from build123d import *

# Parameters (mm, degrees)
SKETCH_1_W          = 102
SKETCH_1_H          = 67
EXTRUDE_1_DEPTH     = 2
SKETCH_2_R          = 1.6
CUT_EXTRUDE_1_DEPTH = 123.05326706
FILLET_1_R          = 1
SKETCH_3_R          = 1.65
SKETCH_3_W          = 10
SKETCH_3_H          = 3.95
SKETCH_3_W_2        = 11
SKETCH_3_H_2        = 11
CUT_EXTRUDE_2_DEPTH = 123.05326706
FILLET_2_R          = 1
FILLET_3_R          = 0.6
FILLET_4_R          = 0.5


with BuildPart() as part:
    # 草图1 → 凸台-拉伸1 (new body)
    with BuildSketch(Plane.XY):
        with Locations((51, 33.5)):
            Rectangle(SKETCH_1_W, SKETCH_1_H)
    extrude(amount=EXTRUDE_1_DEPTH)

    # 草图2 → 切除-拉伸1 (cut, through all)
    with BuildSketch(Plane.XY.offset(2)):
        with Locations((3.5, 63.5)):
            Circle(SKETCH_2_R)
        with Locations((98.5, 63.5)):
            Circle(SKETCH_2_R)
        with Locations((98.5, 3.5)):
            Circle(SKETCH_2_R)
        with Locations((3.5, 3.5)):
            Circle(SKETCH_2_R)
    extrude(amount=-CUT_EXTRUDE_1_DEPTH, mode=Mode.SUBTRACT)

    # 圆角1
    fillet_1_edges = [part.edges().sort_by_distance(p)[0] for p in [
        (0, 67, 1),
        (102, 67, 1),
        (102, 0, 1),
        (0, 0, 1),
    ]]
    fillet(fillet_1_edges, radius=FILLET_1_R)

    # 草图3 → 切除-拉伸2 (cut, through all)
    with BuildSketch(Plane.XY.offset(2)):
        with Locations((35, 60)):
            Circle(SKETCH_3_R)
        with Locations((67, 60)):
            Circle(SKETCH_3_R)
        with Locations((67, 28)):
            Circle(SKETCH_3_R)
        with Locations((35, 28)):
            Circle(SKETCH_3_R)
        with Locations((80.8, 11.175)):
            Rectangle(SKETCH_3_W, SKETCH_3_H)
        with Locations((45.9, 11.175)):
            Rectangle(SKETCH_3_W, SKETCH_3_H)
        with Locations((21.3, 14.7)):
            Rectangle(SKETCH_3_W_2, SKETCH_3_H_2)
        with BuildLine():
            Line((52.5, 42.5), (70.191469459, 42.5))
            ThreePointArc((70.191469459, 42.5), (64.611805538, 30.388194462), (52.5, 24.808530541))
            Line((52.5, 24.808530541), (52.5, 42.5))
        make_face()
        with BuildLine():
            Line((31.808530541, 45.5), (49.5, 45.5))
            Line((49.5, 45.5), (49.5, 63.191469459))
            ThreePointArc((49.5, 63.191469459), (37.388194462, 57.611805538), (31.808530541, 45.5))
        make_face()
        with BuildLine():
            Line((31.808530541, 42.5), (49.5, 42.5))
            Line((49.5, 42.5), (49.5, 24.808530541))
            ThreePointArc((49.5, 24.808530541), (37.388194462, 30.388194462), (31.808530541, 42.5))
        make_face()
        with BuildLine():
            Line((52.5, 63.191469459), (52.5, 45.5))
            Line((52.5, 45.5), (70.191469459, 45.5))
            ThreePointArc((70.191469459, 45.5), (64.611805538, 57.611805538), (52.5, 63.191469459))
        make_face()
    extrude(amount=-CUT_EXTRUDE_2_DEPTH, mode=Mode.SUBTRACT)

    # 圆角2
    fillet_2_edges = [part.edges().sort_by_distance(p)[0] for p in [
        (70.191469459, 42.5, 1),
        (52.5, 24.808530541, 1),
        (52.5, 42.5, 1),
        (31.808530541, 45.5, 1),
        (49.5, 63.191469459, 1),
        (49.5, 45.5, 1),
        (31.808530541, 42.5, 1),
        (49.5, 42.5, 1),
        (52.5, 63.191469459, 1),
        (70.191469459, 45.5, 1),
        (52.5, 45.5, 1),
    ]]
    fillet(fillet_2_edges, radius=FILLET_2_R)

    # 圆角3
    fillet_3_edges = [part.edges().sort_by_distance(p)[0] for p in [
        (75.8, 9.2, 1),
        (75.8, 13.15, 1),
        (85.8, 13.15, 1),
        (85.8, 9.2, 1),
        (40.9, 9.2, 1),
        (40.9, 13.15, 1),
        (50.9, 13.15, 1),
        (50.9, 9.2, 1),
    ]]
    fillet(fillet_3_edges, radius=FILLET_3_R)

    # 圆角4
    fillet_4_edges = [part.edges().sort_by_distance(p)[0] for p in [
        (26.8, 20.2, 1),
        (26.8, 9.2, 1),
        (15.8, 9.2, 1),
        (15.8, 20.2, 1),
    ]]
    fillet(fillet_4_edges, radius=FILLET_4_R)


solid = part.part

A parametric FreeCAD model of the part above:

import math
import FreeCAD as App
import Part
import Sketcher
Q = App.Units.Quantity


def edges_at(feature, points):
    """Names of the edges that pass closest to the given points."""
    edges = feature.Shape.Edges
    near = lambda p: min(range(len(edges)), key=lambda i: edges[i].distToShape(Part.Vertex(*p))[0])
    return sorted({f"Edge{near(p) + 1}" for p in points})


def add_polygon(sketch, points):
    """Adds a closed chain of lines whose ends are joined by coincident constraints."""
    first, n = sketch.GeometryCount, len(points)
    for a, b in zip(points, points[1:] + points[:1]):
        sketch.addGeometry(Part.LineSegment(App.Vector(*a, 0), App.Vector(*b, 0)), False)
    for i in range(n):
        sketch.addConstraint(Sketcher.Constraint("Coincident", first + i, 2, first + (i + 1) % n, 1))

doc = App.newDocument("Part")
body = doc.addObject("PartDesign::Body", "Body")

sketch1 = doc.addObject("Sketcher::SketchObject", "Sketch")
body.addObject(sketch1)
sketch1.AttachmentSupport = (doc.XY_Plane, [""])
sketch1.MapMode = "FlatFace"
add_polygon(sketch1, [(0, 67), (0, 0), (102, 0), (102, 67)])
sketch1.addConstraint([
    Sketcher.Constraint("Vertical", 0),
    Sketcher.Constraint("Horizontal", 1),
    Sketcher.Constraint("Vertical", 2),
    Sketcher.Constraint("Horizontal", 3),
    Sketcher.Constraint("Coincident", 0, 2, -1, 1),
    Sketcher.Constraint("DistanceX", 1, 1, 1, 2, Q("102 mm")),
    Sketcher.Constraint("DistanceY", 0, 2, 0, 1, Q("67 mm")),
])
pad1 = doc.addObject("PartDesign::Pad", "Pad")
body.addObject(pad1)
pad1.Profile = sketch1
pad1.Length = 2

sketch2 = doc.addObject("Sketcher::SketchObject", "Sketch001")
body.addObject(sketch2)
sketch2.AttachmentSupport = (doc.XY_Plane, [""])
sketch2.MapMode = "FlatFace"
sketch2.AttachmentOffset = App.Placement(App.Vector(0, 0, 2), App.Rotation())
sketch2.addGeometry([
    Part.Circle(App.Vector(3.5, 63.5, 0), App.Vector(0, 0, 1), 1.6),
    Part.Circle(App.Vector(98.5, 63.5, 0), App.Vector(0, 0, 1), 1.6),
    Part.Circle(App.Vector(98.5, 3.5, 0), App.Vector(0, 0, 1), 1.6),
    Part.Circle(App.Vector(3.5, 3.5, 0), App.Vector(0, 0, 1), 1.6),
], False)
sketch2.addConstraint([
    Sketcher.Constraint("Equal", 0, 1),
    Sketcher.Constraint("Equal", 1, 2),
    Sketcher.Constraint("Equal", 2, 3),
    Sketcher.Constraint("Horizontal", 0, 3, 1, 3),
    Sketcher.Constraint("Horizontal", 2, 3, 3, 3),
    Sketcher.Constraint("Vertical", 1, 3, 2, 3),
    Sketcher.Constraint("Vertical", 0, 3, 3, 3),
    Sketcher.Constraint("Diameter", 0, Q("3.2 mm")),
    Sketcher.Constraint("DistanceX", 0, 3, 1, 3, Q("95 mm")),
    Sketcher.Constraint("DistanceY", 2, 3, 1, 3, Q("60 mm")),
    Sketcher.Constraint("DistanceX", -1, 1, 0, 3, Q("3.5 mm")),
    Sketcher.Constraint("DistanceY", -1, 1, 0, 3, Q("63.5 mm")),
])
pocket1 = doc.addObject("PartDesign::Pocket", "Pocket")
body.addObject(pocket1)
pocket1.Profile = sketch2
pocket1.Type = "ThroughAll"
doc.recompute()

fillet = doc.addObject("PartDesign::Fillet", "Fillet")
body.addObject(fillet)
fillet.Base = (pocket1, edges_at(pocket1, [
    (0, 67, 1),
    (102, 67, 1),
    (102, 0, 1),
    (0, 0, 1),
]))
fillet.Radius = 1

sketch3 = doc.addObject("Sketcher::SketchObject", "Sketch002")
body.addObject(sketch3)
sketch3.AttachmentSupport = (doc.XY_Plane, [""])
sketch3.MapMode = "FlatFace"
sketch3.AttachmentOffset = App.Placement(App.Vector(0, 0, 2), App.Rotation())
sketch3.addGeometry(Part.Circle(App.Vector(35, 60, 0), App.Vector(0, 0, 1), 1.6), False)
sketch3.addGeometry(Part.Circle(App.Vector(67, 60, 0), App.Vector(0, 0, 1), 1.6), False)
sketch3.addGeometry(Part.Circle(App.Vector(67, 28, 0), App.Vector(0, 0, 1), 1.6), False)
sketch3.addGeometry(Part.Circle(App.Vector(35, 28, 0), App.Vector(0, 0, 1), 1.6), False)
add_polygon(sketch3, [(75.8, 13.2), (75.8, 9.2), (85.8, 9.2), (85.8, 13.2)])
add_polygon(sketch3, [(40.9, 13.2), (40.9, 9.2), (50.9, 9.2), (50.9, 13.2)])
add_polygon(sketch3, [(15.8, 20.2), (15.8, 9.2), (26.8, 9.2), (26.8, 20.2)])
sketch3.addGeometry(Part.LineSegment(App.Vector(70.2, 42.5, 0), App.Vector(52.5, 42.5, 0)), False)
sketch3.addGeometry(Part.LineSegment(App.Vector(52.5, 42.5, 0), App.Vector(52.5, 24.8, 0)), False)
sketch3.addGeometry(Part.ArcOfCircle(Part.Circle(App.Vector(51, 44, 0), App.Vector(0, 0, 1), 19.2), math.radians(-86), math.radians(-4)), False)
sketch3.addGeometry(Part.LineSegment(App.Vector(31.8, 45.5, 0), App.Vector(49.5, 45.5, 0)), False)
sketch3.addGeometry(Part.LineSegment(App.Vector(49.5, 45.5, 0), App.Vector(49.5, 63.2, 0)), False)
sketch3.addGeometry(Part.ArcOfCircle(Part.Circle(App.Vector(51, 44, 0), App.Vector(0, 0, 1), 19.2), math.radians(94), math.radians(176)), False)
sketch3.addGeometry(Part.LineSegment(App.Vector(49.5, 42.5, 0), App.Vector(31.8, 42.5, 0)), False)
sketch3.addGeometry(Part.ArcOfCircle(Part.Circle(App.Vector(51, 44, 0), App.Vector(0, 0, 1), 19.2), math.radians(-176), math.radians(-94)), False)
sketch3.addGeometry(Part.LineSegment(App.Vector(49.5, 24.8, 0), App.Vector(49.5, 42.5, 0)), False)
sketch3.addGeometry(Part.LineSegment(App.Vector(52.5, 63.2, 0), App.Vector(52.5, 45.5, 0)), False)
sketch3.addGeometry(Part.LineSegment(App.Vector(52.5, 45.5, 0), App.Vector(70.2, 45.5, 0)), False)
sketch3.addGeometry(Part.ArcOfCircle(Part.Circle(App.Vector(51, 44, 0), App.Vector(0, 0, 1), 19.2), math.radians(4), math.radians(86)), False)
sketch3.addConstraint([
    Sketcher.Constraint("Coincident", 16, 2, 17, 1),
    Sketcher.Constraint("Coincident", 17, 2, 18, 1),
    Sketcher.Constraint("Coincident", 18, 2, 16, 1),
    Sketcher.Constraint("Coincident", 19, 2, 20, 1),
    Sketcher.Constraint("Coincident", 20, 2, 21, 1),
    Sketcher.Constraint("Coincident", 21, 2, 19, 1),
    Sketcher.Constraint("Coincident", 22, 2, 23, 1),
    Sketcher.Constraint("Coincident", 23, 2, 24, 1),
    Sketcher.Constraint("Coincident", 24, 2, 22, 1),
    Sketcher.Constraint("Coincident", 25, 2, 26, 1),
    Sketcher.Constraint("Coincident", 26, 2, 27, 1),
    Sketcher.Constraint("Coincident", 27, 2, 25, 1),
    Sketcher.Constraint("Vertical", 4),
    Sketcher.Constraint("Horizontal", 5),
    Sketcher.Constraint("Vertical", 6),
    Sketcher.Constraint("Horizontal", 7),
    Sketcher.Constraint("Vertical", 8),
    Sketcher.Constraint("Horizontal", 9),
    Sketcher.Constraint("Vertical", 10),
    Sketcher.Constraint("Horizontal", 11),
    Sketcher.Constraint("Vertical", 12),
    Sketcher.Constraint("Horizontal", 13),
    Sketcher.Constraint("Vertical", 14),
    Sketcher.Constraint("Horizontal", 15),
    Sketcher.Constraint("Horizontal", 16),
    Sketcher.Constraint("Vertical", 17),
    Sketcher.Constraint("Horizontal", 19),
    Sketcher.Constraint("Vertical", 20),
    Sketcher.Constraint("Horizontal", 22),
    Sketcher.Constraint("Vertical", 24),
    Sketcher.Constraint("Vertical", 25),
    Sketcher.Constraint("Horizontal", 26),
    Sketcher.Constraint("Coincident", 21, 3, 18, 3),
    Sketcher.Constraint("Coincident", 23, 3, 18, 3),
    Sketcher.Constraint("Coincident", 27, 3, 18, 3),
    Sketcher.Constraint("Equal", 0, 1),
    Sketcher.Constraint("Equal", 1, 2),
    Sketcher.Constraint("Equal", 2, 3),
    Sketcher.Constraint("Equal", 18, 21),
    Sketcher.Constraint("Equal", 21, 23),
    Sketcher.Constraint("Equal", 23, 27),
    Sketcher.Constraint("Horizontal", 0, 3, 1, 3),
    Sketcher.Constraint("Horizontal", 2, 3, 3, 3),
    Sketcher.Constraint("Horizontal", 5, 2, 8, 2),
    Sketcher.Constraint("Horizontal", 7, 2, 10, 2),
    Sketcher.Constraint("Horizontal", 9, 2, 12, 2),
    Sketcher.Constraint("Horizontal", 18, 2, 22, 2),
    Sketcher.Constraint("Horizontal", 17, 2, 23, 2),
    Sketcher.Constraint("Horizontal", 21, 2, 25, 2),
    Sketcher.Constraint("Horizontal", 20, 2, 27, 2),
    Sketcher.Constraint("Vertical", 1, 3, 2, 3),
    Sketcher.Constraint("Vertical", 0, 3, 3, 3),
    Sketcher.Constraint("Vertical", 21, 2, 22, 2),
    Sketcher.Constraint("Vertical", 20, 2, 23, 2),
    Sketcher.Constraint("Equal", 7, 9),
    Sketcher.Constraint("Equal", 15, 12),
    Sketcher.Constraint("Equal", 26, 17),
    Sketcher.Constraint("Diameter", 0, Q("3.3 mm")),
    Sketcher.Constraint("DistanceX", 5, 1, 5, 2, Q("10 mm")),
    Sketcher.Constraint("DistanceX", 13, 1, 13, 2, Q("11 mm")),
    Sketcher.Constraint("Radius", 18, Q("19.25 mm")),
    Sketcher.Constraint("DistanceX", -1, 1, 0, 3, Q("35 mm")),
    Sketcher.Constraint("DistanceY", -1, 1, 0, 3, Q("60 mm")),
    Sketcher.Constraint("DistanceX", -1, 1, 1, 3, Q("67 mm")),
    Sketcher.Constraint("DistanceY", -1, 1, 2, 3, Q("28 mm")),
    Sketcher.Constraint("DistanceX", -1, 1, 18, 3, Q("51 mm")),
    Sketcher.Constraint("DistanceY", -1, 1, 18, 3, Q("44 mm")),
    Sketcher.Constraint("DistanceX", 19, 2, 16, 2, Q("3 mm")),
    Sketcher.Constraint("DistanceY", 4, 2, 4, 1, Q("3.95 mm")),
    Sketcher.Constraint("DistanceX", -1, 1, 4, 2, Q("75.8 mm")),
    Sketcher.Constraint("DistanceY", -1, 1, 4, 2, Q("9.2 mm")),
    Sketcher.Constraint("DistanceX", -1, 1, 8, 2, Q("40.9 mm")),
    Sketcher.Constraint("DistanceX", -1, 1, 12, 2, Q("15.8 mm")),
])
pocket2 = doc.addObject("PartDesign::Pocket", "Pocket001")
body.addObject(pocket2)
pocket2.Profile = sketch3
pocket2.Type = "ThroughAll"
doc.recompute()

fillet2 = doc.addObject("PartDesign::Fillet", "Fillet001")
body.addObject(fillet2)
fillet2.Base = (pocket2, edges_at(pocket2, [
    (70.191, 42.5, 1),
    (52.5, 24.809, 1),
    (52.5, 42.5, 1),
    (31.809, 45.5, 1),
    (49.5, 63.191, 1),
    (49.5, 45.5, 1),
    (31.809, 42.5, 1),
    (49.5, 42.5, 1),
    (52.5, 63.191, 1),
    (70.191, 45.5, 1),
    (52.5, 45.5, 1),
]))
fillet2.Radius = 1
doc.recompute()

fillet3 = doc.addObject("PartDesign::Fillet", "Fillet002")
body.addObject(fillet3)
fillet3.Base = (fillet2, edges_at(fillet2, [
    (75.8, 9.2, 1),
    (75.8, 13.15, 1),
    (85.8, 13.15, 1),
    (85.8, 9.2, 1),
    (40.9, 9.2, 1),
    (40.9, 13.15, 1),
    (50.9, 13.15, 1),
    (50.9, 9.2, 1),
]))
fillet3.Radius = 0.6
doc.recompute()

fillet4 = doc.addObject("PartDesign::Fillet", "Fillet003")
body.addObject(fillet4)
fillet4.Base = (fillet3, edges_at(fillet3, [
    (26.8, 20.2, 1),
    (26.8, 9.2, 1),
    (15.8, 9.2, 1),
    (15.8, 20.2, 1),
]))
fillet4.Radius = 0.5

doc.recompute()
